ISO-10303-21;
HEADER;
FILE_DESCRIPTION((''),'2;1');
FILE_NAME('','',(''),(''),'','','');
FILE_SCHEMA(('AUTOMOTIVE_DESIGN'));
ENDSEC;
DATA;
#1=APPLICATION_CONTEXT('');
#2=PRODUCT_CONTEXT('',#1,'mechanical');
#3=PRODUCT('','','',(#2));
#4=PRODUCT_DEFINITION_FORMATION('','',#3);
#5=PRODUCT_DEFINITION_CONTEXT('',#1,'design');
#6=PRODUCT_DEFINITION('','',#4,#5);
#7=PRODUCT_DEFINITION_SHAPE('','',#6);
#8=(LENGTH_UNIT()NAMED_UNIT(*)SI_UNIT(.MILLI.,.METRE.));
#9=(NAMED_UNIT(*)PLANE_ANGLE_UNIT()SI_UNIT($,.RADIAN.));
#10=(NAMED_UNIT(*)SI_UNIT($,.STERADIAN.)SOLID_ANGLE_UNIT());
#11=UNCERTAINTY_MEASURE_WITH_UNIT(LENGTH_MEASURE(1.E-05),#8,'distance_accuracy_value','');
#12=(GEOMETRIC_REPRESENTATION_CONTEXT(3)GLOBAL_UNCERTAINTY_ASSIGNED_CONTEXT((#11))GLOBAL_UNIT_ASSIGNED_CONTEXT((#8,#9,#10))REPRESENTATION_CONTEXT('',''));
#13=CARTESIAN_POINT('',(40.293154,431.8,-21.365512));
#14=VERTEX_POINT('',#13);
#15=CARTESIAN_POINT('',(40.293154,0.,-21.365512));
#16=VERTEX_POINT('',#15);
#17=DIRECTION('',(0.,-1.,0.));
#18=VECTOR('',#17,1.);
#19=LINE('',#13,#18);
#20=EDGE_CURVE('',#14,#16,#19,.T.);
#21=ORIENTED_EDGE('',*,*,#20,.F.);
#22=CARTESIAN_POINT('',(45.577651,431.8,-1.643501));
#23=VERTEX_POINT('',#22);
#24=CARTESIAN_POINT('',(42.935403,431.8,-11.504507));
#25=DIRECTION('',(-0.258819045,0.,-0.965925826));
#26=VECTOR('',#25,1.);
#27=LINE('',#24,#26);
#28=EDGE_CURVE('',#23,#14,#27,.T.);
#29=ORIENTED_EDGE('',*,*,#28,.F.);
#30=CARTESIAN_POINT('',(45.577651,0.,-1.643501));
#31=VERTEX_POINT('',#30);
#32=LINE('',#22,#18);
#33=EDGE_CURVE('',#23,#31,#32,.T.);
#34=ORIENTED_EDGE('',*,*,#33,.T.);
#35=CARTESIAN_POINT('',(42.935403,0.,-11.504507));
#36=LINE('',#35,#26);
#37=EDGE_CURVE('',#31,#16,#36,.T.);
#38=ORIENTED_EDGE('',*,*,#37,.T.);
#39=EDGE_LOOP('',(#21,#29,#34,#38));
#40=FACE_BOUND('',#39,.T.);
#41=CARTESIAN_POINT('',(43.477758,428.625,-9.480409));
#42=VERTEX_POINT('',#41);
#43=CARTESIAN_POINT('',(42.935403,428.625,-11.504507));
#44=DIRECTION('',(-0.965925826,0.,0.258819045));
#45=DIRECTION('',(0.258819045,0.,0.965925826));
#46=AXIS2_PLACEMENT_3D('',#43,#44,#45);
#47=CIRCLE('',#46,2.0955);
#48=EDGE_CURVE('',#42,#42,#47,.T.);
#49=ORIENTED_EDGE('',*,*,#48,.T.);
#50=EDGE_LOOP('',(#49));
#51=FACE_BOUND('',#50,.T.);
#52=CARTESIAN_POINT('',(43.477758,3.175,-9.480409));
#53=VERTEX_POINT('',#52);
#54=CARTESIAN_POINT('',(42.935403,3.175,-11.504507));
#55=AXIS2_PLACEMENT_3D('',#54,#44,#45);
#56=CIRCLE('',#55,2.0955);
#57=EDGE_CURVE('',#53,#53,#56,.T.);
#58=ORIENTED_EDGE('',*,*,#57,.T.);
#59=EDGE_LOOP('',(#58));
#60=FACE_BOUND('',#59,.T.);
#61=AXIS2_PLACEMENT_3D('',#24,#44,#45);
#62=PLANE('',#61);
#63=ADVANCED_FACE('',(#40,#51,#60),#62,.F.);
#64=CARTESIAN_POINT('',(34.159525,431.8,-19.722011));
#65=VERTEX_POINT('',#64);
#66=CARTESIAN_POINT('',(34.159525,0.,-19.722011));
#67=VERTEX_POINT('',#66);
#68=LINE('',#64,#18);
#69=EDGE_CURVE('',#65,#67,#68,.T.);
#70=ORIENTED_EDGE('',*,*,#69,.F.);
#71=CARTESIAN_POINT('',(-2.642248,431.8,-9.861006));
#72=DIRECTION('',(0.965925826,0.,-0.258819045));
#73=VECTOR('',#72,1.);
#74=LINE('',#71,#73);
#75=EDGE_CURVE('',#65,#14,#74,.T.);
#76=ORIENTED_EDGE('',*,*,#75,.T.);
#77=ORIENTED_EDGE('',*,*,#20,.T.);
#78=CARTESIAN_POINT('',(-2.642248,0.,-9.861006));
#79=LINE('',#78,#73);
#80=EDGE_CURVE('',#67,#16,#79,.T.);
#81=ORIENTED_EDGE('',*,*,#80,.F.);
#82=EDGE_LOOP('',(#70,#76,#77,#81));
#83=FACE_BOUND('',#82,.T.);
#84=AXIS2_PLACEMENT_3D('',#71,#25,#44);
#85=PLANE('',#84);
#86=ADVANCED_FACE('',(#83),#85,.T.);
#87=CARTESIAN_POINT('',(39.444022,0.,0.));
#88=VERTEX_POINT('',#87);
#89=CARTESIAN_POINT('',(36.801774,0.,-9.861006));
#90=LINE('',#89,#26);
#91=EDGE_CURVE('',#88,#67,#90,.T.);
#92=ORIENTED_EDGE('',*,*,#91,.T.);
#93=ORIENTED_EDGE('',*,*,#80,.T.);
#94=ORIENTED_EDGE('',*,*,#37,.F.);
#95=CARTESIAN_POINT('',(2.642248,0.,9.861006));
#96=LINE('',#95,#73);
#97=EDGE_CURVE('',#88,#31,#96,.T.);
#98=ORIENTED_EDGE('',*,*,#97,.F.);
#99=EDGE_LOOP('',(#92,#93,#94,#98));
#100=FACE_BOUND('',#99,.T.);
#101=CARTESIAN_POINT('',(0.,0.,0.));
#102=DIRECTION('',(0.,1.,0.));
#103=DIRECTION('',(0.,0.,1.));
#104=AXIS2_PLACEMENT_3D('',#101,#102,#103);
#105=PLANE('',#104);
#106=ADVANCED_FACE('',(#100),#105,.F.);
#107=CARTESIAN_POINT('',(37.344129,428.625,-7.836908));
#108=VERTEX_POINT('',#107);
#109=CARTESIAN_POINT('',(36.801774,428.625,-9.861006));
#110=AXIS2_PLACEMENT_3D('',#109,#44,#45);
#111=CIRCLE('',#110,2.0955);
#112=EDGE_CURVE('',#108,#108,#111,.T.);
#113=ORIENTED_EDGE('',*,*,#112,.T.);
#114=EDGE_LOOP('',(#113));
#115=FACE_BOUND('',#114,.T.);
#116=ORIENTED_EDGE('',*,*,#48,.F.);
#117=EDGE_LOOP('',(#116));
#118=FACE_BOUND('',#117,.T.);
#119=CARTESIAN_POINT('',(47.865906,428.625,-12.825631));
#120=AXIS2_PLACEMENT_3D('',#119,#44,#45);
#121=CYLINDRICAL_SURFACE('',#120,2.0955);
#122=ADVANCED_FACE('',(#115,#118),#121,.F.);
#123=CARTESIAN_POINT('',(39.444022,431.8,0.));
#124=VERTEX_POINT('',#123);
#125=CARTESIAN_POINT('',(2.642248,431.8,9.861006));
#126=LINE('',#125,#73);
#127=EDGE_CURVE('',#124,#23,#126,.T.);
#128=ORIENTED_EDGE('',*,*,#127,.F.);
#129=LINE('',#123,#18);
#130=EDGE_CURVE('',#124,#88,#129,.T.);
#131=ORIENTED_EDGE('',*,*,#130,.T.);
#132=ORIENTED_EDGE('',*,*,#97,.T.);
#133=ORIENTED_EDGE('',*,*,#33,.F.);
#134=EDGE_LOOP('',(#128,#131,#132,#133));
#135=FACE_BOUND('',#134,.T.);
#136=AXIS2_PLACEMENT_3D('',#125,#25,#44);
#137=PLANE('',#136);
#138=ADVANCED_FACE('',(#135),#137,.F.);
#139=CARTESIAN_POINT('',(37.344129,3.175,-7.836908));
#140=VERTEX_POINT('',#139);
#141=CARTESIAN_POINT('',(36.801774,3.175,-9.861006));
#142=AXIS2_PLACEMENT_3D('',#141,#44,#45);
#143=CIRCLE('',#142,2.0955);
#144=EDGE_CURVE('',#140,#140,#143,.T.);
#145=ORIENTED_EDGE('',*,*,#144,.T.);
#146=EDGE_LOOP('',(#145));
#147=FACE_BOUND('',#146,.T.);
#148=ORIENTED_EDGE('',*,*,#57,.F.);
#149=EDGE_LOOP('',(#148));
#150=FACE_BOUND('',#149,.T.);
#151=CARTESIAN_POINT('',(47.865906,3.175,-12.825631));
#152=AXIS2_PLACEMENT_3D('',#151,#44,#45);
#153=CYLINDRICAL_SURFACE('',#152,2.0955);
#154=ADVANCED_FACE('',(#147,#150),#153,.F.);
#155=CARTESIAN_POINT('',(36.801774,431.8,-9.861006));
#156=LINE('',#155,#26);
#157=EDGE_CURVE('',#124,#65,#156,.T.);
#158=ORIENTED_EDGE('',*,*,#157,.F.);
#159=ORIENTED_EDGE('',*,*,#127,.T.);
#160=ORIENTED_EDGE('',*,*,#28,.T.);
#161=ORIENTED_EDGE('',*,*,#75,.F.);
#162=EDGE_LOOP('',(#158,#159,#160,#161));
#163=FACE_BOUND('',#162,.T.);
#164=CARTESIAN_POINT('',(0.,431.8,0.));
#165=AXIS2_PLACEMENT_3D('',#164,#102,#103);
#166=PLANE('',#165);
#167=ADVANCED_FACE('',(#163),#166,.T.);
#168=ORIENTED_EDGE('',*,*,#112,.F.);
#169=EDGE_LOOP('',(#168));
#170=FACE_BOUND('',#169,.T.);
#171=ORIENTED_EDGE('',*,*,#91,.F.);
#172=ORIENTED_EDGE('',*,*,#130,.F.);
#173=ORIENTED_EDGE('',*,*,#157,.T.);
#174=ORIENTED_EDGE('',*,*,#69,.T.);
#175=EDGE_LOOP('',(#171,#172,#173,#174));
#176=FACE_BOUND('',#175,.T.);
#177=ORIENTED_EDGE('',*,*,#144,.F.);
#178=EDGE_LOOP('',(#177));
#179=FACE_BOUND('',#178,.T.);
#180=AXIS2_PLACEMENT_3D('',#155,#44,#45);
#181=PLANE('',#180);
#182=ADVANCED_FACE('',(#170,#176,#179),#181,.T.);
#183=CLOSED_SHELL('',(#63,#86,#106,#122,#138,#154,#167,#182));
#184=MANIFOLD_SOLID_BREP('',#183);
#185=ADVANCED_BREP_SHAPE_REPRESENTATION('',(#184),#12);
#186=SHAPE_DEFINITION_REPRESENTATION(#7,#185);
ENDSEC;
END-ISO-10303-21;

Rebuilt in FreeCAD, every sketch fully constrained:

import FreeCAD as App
import Part
import Sketcher
Q = App.Units.Quantity


def add_polygon(sketch, points):
    """Adds a closed chain of lines whose ends are joined by coincident constraints."""
    first, n = sketch.GeometryCount, len(points)
    for a, b in zip(points, points[1:] + points[:1]):
        sketch.addGeometry(Part.LineSegment(App.Vector(*a, 0), App.Vector(*b, 0)), False)
    for i in range(n):
        sketch.addConstraint(Sketcher.Constraint("Coincident", first + i, 2, first + (i + 1) % n, 1))

doc = App.newDocument("Part")
params = doc.addObject("Spreadsheet::Sheet", "Params")
for row, (alias, value) in enumerate([
    ("sketch1_length", "0.25 in"),
    ("pad1_length", "17 in"),
    ("sketch2_diameter", "0.165 in"),
    ("sketch3_diameter", "0.165 in"),
], start=1):
    params.set(f"A{row}", alias)
    params.set(f"B{row}", "=" + value)
    params.setAlias(f"B{row}", alias)

body = doc.addObject("PartDesign::Body", "Body")

sketch1 = body.newObject("Sketcher::SketchObject", "Sketch")
sketch1.AttachmentSupport = (doc.getObject("XZ_Plane"), [""])
sketch1.MapMode = "FlatFace"
add_polygon(sketch1, [(39, 0), (46, -2), (40, -21), (34, -20)])
sketch1.addConstraint([
    Sketcher.Constraint("PointOnObject", 3, 2, -1),
    Sketcher.Constraint("Perpendicular", 0, 1),
    Sketcher.Constraint("Perpendicular", 1, 2),
    Sketcher.Constraint("Perpendicular", 2, 3),
    Sketcher.Constraint("Angle", 0, Q("-15 deg")),
    Sketcher.Constraint("Distance", 0, Q("0.25 in")),
    Sketcher.Constraint("Distance", 1, 20.417728),
    Sketcher.Constraint("DistanceX", -1, 1, 0, 2, 45.577651),
])
sketch1.setExpression("Constraints[9]", "Params.sketch1_length")
pad1 = body.newObject("PartDesign::Pad", "Pad")
pad1.Profile = sketch1
pad1.setExpression("Length", "Params.pad1_length")
pad1.Reversed = True

sketch2 = body.newObject("Sketcher::SketchObject", "Sketch001")
sketch2.Placement = App.Placement(App.Vector(36.801774, 0, -9.861006), App.Rotation(App.Vector(0.258819045, 0, 0.965925826), App.Vector(0, 0.999999999, 0), App.Vector(-0.965925826, 0, 0.258819045), "ZXY"))
sketch2.addGeometry(Part.Circle(App.Vector(0, 428.6, 0), App.Vector(0, 0, 1), 2.1), False)
sketch2.addConstraint([
    Sketcher.Constraint("PointOnObject", 0, 3, -2),
    Sketcher.Constraint("Diameter", 0, Q("0.165 in")),
    Sketcher.Constraint("DistanceY", -1, 1, 0, 3, Q("16.875 in")),
])
sketch2.setExpression("Constraints[1]", "Params.sketch2_diameter")
pocket1 = body.newObject("PartDesign::Pocket", "Pocket")
pocket1.Profile = sketch2
pocket1.Type = "ThroughAll"

sketch3 = body.newObject("Sketcher::SketchObject", "Sketch002")
sketch3.Placement = App.Placement(App.Vector(36.801774, 0, -9.861006), App.Rotation(App.Vector(0.258819045, 0, 0.965925826), App.Vector(0, 0.999999999, 0), App.Vector(-0.965925826, 0, 0.258819045), "ZXY"))
sketch3.addGeometry(Part.Circle(App.Vector(0, 3.2, 0), App.Vector(0, 0, 1), 2.1), False)
sketch3.addConstraint([
    Sketcher.Constraint("PointOnObject", 0, 3, -2),
    Sketcher.Constraint("Diameter", 0, Q("0.165 in")),
    Sketcher.Constraint("DistanceY", -1, 1, 0, 3, Q("0.125 in")),
])
sketch3.setExpression("Constraints[1]", "Params.sketch3_diameter")
pocket2 = body.newObject("PartDesign::Pocket", "Pocket001")
pocket2.Profile = sketch3
pocket2.Type = "ThroughAll"

doc.recompute()
